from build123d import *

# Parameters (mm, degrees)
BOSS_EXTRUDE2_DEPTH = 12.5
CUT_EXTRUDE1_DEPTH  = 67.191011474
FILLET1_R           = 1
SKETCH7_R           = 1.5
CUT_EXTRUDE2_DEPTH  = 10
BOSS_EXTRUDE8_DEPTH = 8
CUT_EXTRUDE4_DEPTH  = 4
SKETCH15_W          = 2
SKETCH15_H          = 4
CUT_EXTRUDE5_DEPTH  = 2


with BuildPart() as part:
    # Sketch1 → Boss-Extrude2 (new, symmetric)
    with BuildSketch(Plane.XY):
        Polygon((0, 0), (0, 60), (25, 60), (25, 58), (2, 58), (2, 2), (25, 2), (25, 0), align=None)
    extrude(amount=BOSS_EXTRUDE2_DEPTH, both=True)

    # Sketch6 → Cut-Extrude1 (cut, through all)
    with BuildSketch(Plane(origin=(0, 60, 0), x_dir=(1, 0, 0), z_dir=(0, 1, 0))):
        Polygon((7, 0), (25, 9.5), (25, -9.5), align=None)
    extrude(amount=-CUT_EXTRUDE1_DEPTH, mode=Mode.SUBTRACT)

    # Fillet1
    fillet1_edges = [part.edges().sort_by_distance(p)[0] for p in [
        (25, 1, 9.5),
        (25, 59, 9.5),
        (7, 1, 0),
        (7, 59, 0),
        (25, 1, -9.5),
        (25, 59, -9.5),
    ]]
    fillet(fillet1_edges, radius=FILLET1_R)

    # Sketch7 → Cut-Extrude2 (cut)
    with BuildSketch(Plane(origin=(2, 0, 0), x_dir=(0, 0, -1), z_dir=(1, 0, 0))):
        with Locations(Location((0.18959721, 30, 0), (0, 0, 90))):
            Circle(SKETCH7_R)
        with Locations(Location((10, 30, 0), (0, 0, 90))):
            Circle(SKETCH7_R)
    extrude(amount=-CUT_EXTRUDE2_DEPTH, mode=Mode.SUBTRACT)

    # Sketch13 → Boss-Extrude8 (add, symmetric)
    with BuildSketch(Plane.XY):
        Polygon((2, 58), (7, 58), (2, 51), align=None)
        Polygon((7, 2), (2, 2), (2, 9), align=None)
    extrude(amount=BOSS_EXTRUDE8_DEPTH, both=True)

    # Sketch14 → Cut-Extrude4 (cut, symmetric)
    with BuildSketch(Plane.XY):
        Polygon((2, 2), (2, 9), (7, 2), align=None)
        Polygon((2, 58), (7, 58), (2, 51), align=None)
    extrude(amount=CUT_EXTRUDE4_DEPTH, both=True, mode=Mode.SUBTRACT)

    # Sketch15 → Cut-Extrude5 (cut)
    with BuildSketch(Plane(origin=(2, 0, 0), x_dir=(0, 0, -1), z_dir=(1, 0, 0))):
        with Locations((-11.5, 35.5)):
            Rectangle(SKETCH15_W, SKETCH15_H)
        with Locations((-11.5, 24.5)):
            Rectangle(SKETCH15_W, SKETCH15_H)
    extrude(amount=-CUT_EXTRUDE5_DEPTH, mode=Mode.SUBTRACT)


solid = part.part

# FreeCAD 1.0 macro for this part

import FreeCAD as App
import Part
import Sketcher

V = App.Vector


def edges_at(feature, points):
    """Names of the edges that pass closest to the given points."""
    edges = feature.Shape.Edges
    near = lambda p: min(range(len(edges)), key=lambda i: edges[i].distToShape(Part.Vertex(*p))[0])
    return sorted({f"Edge{near(p) + 1}" for p in points})

doc = App.newDocument("Part")
body = doc.addObject("PartDesign::Body", "Body")

# Sketch on XY plane
sketch1 = body.newObject("Sketcher::SketchObject", "Sketch")
sketch1.AttachmentSupport = (doc.getObject("XY_Plane"), [""])
sketch1.MapMode = "FlatFace"
sketch1.addGeometry(Part.LineSegment(V(0, 60, 0), V(0, 0, 0)), False)
sketch1.addGeometry(Part.LineSegment(V(0, 0, 0), V(25, 0, 0)), False)
sketch1.addGeometry(Part.LineSegment(V(25, 0, 0), V(25, 2, 0)), False)
sketch1.addGeometry(Part.LineSegment(V(25, 2, 0), V(2, 2, 0)), False)
sketch1.addGeometry(Part.LineSegment(V(2, 2, 0), V(2, 58, 0)), False)
sketch1.addGeometry(Part.LineSegment(V(2, 58, 0), V(25, 58, 0)), False)
sketch1.addGeometry(Part.LineSegment(V(25, 58, 0), V(25, 60, 0)), False)
sketch1.addGeometry(Part.LineSegment(V(25, 60, 0), V(0, 60, 0)), False)
sketch1.addConstraint(Sketcher.Constraint("Coincident", 0, 2, 1, 1))
sketch1.addConstraint(Sketcher.Constraint("Coincident", 1, 2, 2, 1))
sketch1.addConstraint(Sketcher.Constraint("Coincident", 2, 2, 3, 1))
sketch1.addConstraint(Sketcher.Constraint("Coincident", 3, 2, 4, 1))
sketch1.addConstraint(Sketcher.Constraint("Coincident", 4, 2, 5, 1))
sketch1.addConstraint(Sketcher.Constraint("Coincident", 5, 2, 6, 1))
sketch1.addConstraint(Sketcher.Constraint("Coincident", 6, 2, 7, 1))
sketch1.addConstraint(Sketcher.Constraint("Coincident", 7, 2, 0, 1))
sketch1.addConstraint(Sketcher.Constraint("Vertical", 0))
sketch1.addConstraint(Sketcher.Constraint("Horizontal", 1))
sketch1.addConstraint(Sketcher.Constraint("Vertical", 2))
sketch1.addConstraint(Sketcher.Constraint("Horizontal", 3))
sketch1.addConstraint(Sketcher.Constraint("Vertical", 4))
sketch1.addConstraint(Sketcher.Constraint("Horizontal", 5))
sketch1.addConstraint(Sketcher.Constraint("Vertical", 6))
sketch1.addConstraint(Sketcher.Constraint("Horizontal", 7))
sketch1.addConstraint(Sketcher.Constraint("Coincident", 0, 2, -1, 1))
sketch1.addConstraint(Sketcher.Constraint("Vertical", 2, 2, 5, 2))
sketch1.addConstraint(Sketcher.Constraint("Equal", 2, 6))
sketch1.addConstraint(Sketcher.Constraint("DistanceX", 1, 1, 1, 2, 25.0))
sketch1.addConstraint(Sketcher.Constraint("DistanceX", 3, 2, 3, 1, 23.0))
sketch1.addConstraint(Sketcher.Constraint("DistanceY", 0, 2, 0, 1, 60.0))
sketch1.addConstraint(Sketcher.Constraint("DistanceY", 2, 1, 2, 2, 2.0))
pad1 = body.newObject("PartDesign::Pad", "Pad")
pad1.Profile = sketch1
pad1.Length = 25
pad1.Midplane = True

# Sketch on XZ plane
sketch2 = body.newObject("Sketcher::SketchObject", "Sketch001")
sketch2.AttachmentSupport = (doc.getObject("XZ_Plane"), [""])
sketch2.MapMode = "FlatFace"
sketch2.AttachmentOffset = App.Placement(V(0, 0, -60), App.Rotation())
sketch2.addGeometry(Part.LineSegment(V(25, -10, 0), V(7, 0, 0)), False)
sketch2.addGeometry(Part.LineSegment(V(7, 0, 0), V(25, 10, 0)), False)
sketch2.addGeometry(Part.LineSegment(V(25, 10, 0), V(25, -10, 0)), False)
sketch2.addConstraint(Sketcher.Constraint("Coincident", 0, 2, 1, 1))
sketch2.addConstraint(Sketcher.Constraint("Coincident", 1, 2, 2, 1))
sketch2.addConstraint(Sketcher.Constraint("Coincident", 2, 2, 0, 1))
sketch2.addConstraint(Sketcher.Constraint("Vertical", 2))
sketch2.addConstraint(Sketcher.Constraint("PointOnObject", 0, 2, -1))
sketch2.addConstraint(Sketcher.Constraint("Equal", 0, 1))
sketch2.addConstraint(Sketcher.Constraint("DistanceY", 2, 2, 2, 1, 19.0))
sketch2.addConstraint(Sketcher.Constraint("DistanceX", -1, 1, 0, 2, 7.0))
sketch2.addConstraint(Sketcher.Constraint("DistanceX", -1, 1, 1, 2, 25.0))
pocket1 = body.newObject("PartDesign::Pocket", "Pocket")
pocket1.Profile = sketch2
pocket1.Type = "ThroughAll"
pocket1.Reversed = True
doc.recompute()

fillet = body.newObject("PartDesign::Fillet", "Fillet")
fillet.Base = (pocket1, edges_at(pocket1, [
    (25, 1, 9.5),
    (25, 59, 9.5),
    (7, 1, 0),
    (7, 59, 0),
    (25, 1, -9.5),
    (25, 59, -9.5),
]))
fillet.Radius = 1

# Sketch on YZ plane
sketch3 = body.newObject("Sketcher::SketchObject", "Sketch002")
sketch3.AttachmentSupport = (doc.getObject("YZ_Plane"), [""])
sketch3.MapMode = "FlatFace"
sketch3.AttachmentOffset = App.Placement(V(0, 0, 2), App.Rotation())
sketch3.addGeometry(Part.Circle(V(30, -0.2, 0), V(0, 0, 1), 1.5), False)
sketch3.addGeometry(Part.Circle(V(30, -10, 0), V(0, 0, 1), 1.5), False)
sketch3.addConstraint(Sketcher.Constraint("Equal", 0, 1))
sketch3.addConstraint(Sketcher.Constraint("Vertical", 0, 3, 1, 3))
sketch3.addConstraint(Sketcher.Constraint("Diameter", 0, 3.0))
sketch3.addConstraint(Sketcher.Constraint("DistanceX", -1, 1, 0, 3, 30.0))
sketch3.addConstraint(Sketcher.Constraint("DistanceY", 1, 3, -1, 1, 10.0))
sketch3.addConstraint(Sketcher.Constraint("DistanceY", 0, 3, -1, 1, 0.189597))
pocket2 = body.newObject("PartDesign::Pocket", "Pocket001")
pocket2.Profile = sketch3
pocket2.Length = 10

# Sketch on XY plane
sketch4 = body.newObject("Sketcher::SketchObject", "Sketch003")
sketch4.AttachmentSupport = (doc.getObject("XY_Plane"), [""])
sketch4.MapMode = "FlatFace"
sketch4.addGeometry(Part.LineSegment(V(7, 58, 0), V(2, 58, 0)), False)
sketch4.addGeometry(Part.LineSegment(V(2, 58, 0), V(2, 51, 0)), False)
sketch4.addGeometry(Part.LineSegment(V(2, 51, 0), V(7, 58, 0)), False)
sketch4.addGeometry(Part.LineSegment(V(2, 2, 0), V(7, 2, 0)), False)
sketch4.addGeometry(Part.LineSegment(V(7, 2, 0), V(2, 9, 0)), False)
sketch4.addGeometry(Part.LineSegment(V(2, 9, 0), V(2, 2, 0)), False)
sketch4.addConstraint(Sketcher.Constraint("Coincident", 0, 2, 1, 1))
sketch4.addConstraint(Sketcher.Constraint("Coincident", 1, 2, 2, 1))
sketch4.addConstraint(Sketcher.Constraint("Coincident", 2, 2, 0, 1))
sketch4.addConstraint(Sketcher.Constraint("Coincident", 3, 2, 4, 1))
sketch4.addConstraint(Sketcher.Constraint("Coincident", 4, 2, 5, 1))
sketch4.addConstraint(Sketcher.Constraint("Coincident", 5, 2, 3, 1))
sketch4.addConstraint(Sketcher.Constraint("Horizontal", 0))
sketch4.addConstraint(Sketcher.Constraint("Vertical", 1))
sketch4.addConstraint(Sketcher.Constraint("Horizontal", 3))
sketch4.addConstraint(Sketcher.Constraint("Vertical", 5))
sketch4.addConstraint(Sketcher.Constraint("Vertical", 2, 2, 3, 2))
sketch4.addConstraint(Sketcher.Constraint("Vertical", 1, 2, 4, 2))
sketch4.addConstraint(Sketcher.Constraint("Equal", 1, 5))
sketch4.addConstraint(Sketcher.Constraint("DistanceX", 0, 2, 0, 1, 5.0))
sketch4.addConstraint(Sketcher.Constraint("DistanceY", 1, 2, 1, 1, 7.0))
sketch4.addConstraint(Sketcher.Constraint("DistanceX", -1, 1, 0, 2, 2.0))
sketch4.addConstraint(Sketcher.Constraint("DistanceY", -1, 1, 0, 2, 58.0))
sketch4.addConstraint(Sketcher.Constraint("DistanceY", -1, 1, 3, 2, 2.0))
pad2 = body.newObject("PartDesign::Pad", "Pad001")
pad2.Profile = sketch4
pad2.Length = 16
pad2.Midplane = True

# Sketch on XY plane
sketch5 = body.newObject("Sketcher::SketchObject", "Sketch004")
sketch5.AttachmentSupport = (doc.getObject("XY_Plane"), [""])
sketch5.MapMode = "FlatFace"
sketch5.addGeometry(Part.LineSegment(V(2, 9, 0), V(2, 2, 0)), False)
sketch5.addGeometry(Part.LineSegment(V(2, 2, 0), V(7, 2, 0)), False)
sketch5.addGeometry(Part.LineSegment(V(7, 2, 0), V(2, 9, 0)), False)
sketch5.addGeometry(Part.LineSegment(V(7, 58, 0), V(2, 58, 0)), False)
sketch5.addGeometry(Part.LineSegment(V(2, 58, 0), V(2, 51, 0)), False)
sketch5.addGeometry(Part.LineSegment(V(2, 51, 0), V(7, 58, 0)), False)
sketch5.addConstraint(Sketcher.Constraint("Coincident", 0, 2, 1, 1))
sketch5.addConstraint(Sketcher.Constraint("Coincident", 1, 2, 2, 1))
sketch5.addConstraint(Sketcher.Constraint("Coincident", 2, 2, 0, 1))
sketch5.addConstraint(Sketcher.Constraint("Coincident", 3, 2, 4, 1))
sketch5.addConstraint(Sketcher.Constraint("Coincident", 4, 2, 5, 1))
sketch5.addConstraint(Sketcher.Constraint("Coincident", 5, 2, 3, 1))
sketch5.addConstraint(Sketcher.Constraint("Vertical", 0))
sketch5.addConstraint(Sketcher.Constraint("Horizontal", 1))
sketch5.addConstraint(Sketcher.Constraint("Horizontal", 3))
sketch5.addConstraint(Sketcher.Constraint("Vertical", 4))
sketch5.addConstraint(Sketcher.Constraint("Vertical", 2, 2, 3, 2))
sketch5.addConstraint(Sketcher.Constraint("Vertical", 1, 2, 5, 2))
sketch5.addConstraint(Sketcher.Constraint("Equal", 0, 4))
sketch5.addConstraint(Sketcher.Constraint("DistanceX", 1, 1, 1, 2, 5.0))
sketch5.addConstraint(Sketcher.Constraint("DistanceY", 0, 2, 0, 1, 7.0))
sketch5.addConstraint(Sketcher.Constraint("DistanceX", -1, 1, 0, 2, 2.0))
sketch5.addConstraint(Sketcher.Constraint("DistanceY", -1, 1, 0, 2, 2.0))
sketch5.addConstraint(Sketcher.Constraint("DistanceY", -1, 1, 3, 2, 58.0))
pocket3 = body.newObject("PartDesign::Pocket", "Pocket002")
pocket3.Profile = sketch5
pocket3.Length = 8
pocket3.Midplane = True

# Sketch on YZ plane
sketch6 = body.newObject("Sketcher::SketchObject", "Sketch005")
sketch6.AttachmentSupport = (doc.getObject("YZ_Plane"), [""])
sketch6.MapMode = "FlatFace"
sketch6.AttachmentOffset = App.Placement(V(0, 0, 2), App.Rotation())
sketch6.addGeometry(Part.LineSegment(V(37.5, 12.5, 0), V(33.5, 12.5, 0)), False)
sketch6.addGeometry(Part.LineSegment(V(33.5, 12.5, 0), V(33.5, 10.5, 0)), False)
sketch6.addGeometry(Part.LineSegment(V(33.5, 10.5, 0), V(37.5, 10.5, 0)), False)
sketch6.addGeometry(Part.LineSegment(V(37.5, 10.5, 0), V(37.5, 12.5, 0)), False)
sketch6.addGeometry(Part.LineSegment(V(26.5, 12.5, 0), V(22.5, 12.5, 0)), False)
sketch6.addGeometry(Part.LineSegment(V(22.5, 12.5, 0), V(22.5, 10.5, 0)), False)
sketch6.addGeometry(Part.LineSegment(V(22.5, 10.5, 0), V(26.5, 10.5, 0)), False)
sketch6.addGeometry(Part.LineSegment(V(26.5, 10.5, 0), V(26.5, 12.5, 0)), False)
sketch6.addConstraint(Sketcher.Constraint("Coincident", 0, 2, 1, 1))
sketch6.addConstraint(Sketcher.Constraint("Coincident", 1, 2, 2, 1))
sketch6.addConstraint(Sketcher.Constraint("Coincident", 2, 2, 3, 1))
sketch6.addConstraint(Sketcher.Constraint("Coincident", 3, 2, 0, 1))
sketch6.addConstraint(Sketcher.Constraint("Coincident", 4, 2, 5, 1))
sketch6.addConstraint(Sketcher.Constraint("Coincident", 5, 2, 6, 1))
sketch6.addConstraint(Sketcher.Constraint("Coincident", 6, 2, 7, 1))
sketch6.addConstraint(Sketcher.Constraint("Coincident", 7, 2, 4, 1))
sketch6.addConstraint(Sketcher.Constraint("Horizontal", 0))
sketch6.addConstraint(Sketcher.Constraint("Vertical", 1))
sketch6.addConstraint(Sketcher.Constraint("Horizontal", 2))
sketch6.addConstraint(Sketcher.Constraint("Vertical", 3))
sketch6.addConstraint(Sketcher.Constraint("Horizontal", 4))
sketch6.addConstraint(Sketcher.Constraint("Vertical", 5))
sketch6.addConstraint(Sketcher.Constraint("Horizontal", 6))
sketch6.addConstraint(Sketcher.Constraint("Vertical", 7))
sketch6.addConstraint(Sketcher.Constraint("Horizontal", 3, 2, 4, 2))
sketch6.addConstraint(Sketcher.Constraint("Horizontal", 2, 2, 5, 2))
sketch6.addConstraint(Sketcher.Constraint("Equal", 2, 4))
sketch6.addConstraint(Sketcher.Constraint("DistanceX", 0, 2, 0, 1, 4.0))
sketch6.addConstraint(Sketcher.Constraint("DistanceY", 1, 2, 1, 1, 2.0))
sketch6.addConstraint(Sketcher.Constraint("DistanceX", 4, 2, 0, 2, 11.0))
sketch6.addConstraint(Sketcher.Constraint("DistanceX", -1, 1, 0, 2, 33.5))
sketch6.addConstraint(Sketcher.Constraint("DistanceY", -1, 1, 0, 2, 12.5))
pocket4 = body.newObject("PartDesign::Pocket", "Pocket003")
pocket4.Profile = sketch6
pocket4.Length = 2

doc.recompute()
